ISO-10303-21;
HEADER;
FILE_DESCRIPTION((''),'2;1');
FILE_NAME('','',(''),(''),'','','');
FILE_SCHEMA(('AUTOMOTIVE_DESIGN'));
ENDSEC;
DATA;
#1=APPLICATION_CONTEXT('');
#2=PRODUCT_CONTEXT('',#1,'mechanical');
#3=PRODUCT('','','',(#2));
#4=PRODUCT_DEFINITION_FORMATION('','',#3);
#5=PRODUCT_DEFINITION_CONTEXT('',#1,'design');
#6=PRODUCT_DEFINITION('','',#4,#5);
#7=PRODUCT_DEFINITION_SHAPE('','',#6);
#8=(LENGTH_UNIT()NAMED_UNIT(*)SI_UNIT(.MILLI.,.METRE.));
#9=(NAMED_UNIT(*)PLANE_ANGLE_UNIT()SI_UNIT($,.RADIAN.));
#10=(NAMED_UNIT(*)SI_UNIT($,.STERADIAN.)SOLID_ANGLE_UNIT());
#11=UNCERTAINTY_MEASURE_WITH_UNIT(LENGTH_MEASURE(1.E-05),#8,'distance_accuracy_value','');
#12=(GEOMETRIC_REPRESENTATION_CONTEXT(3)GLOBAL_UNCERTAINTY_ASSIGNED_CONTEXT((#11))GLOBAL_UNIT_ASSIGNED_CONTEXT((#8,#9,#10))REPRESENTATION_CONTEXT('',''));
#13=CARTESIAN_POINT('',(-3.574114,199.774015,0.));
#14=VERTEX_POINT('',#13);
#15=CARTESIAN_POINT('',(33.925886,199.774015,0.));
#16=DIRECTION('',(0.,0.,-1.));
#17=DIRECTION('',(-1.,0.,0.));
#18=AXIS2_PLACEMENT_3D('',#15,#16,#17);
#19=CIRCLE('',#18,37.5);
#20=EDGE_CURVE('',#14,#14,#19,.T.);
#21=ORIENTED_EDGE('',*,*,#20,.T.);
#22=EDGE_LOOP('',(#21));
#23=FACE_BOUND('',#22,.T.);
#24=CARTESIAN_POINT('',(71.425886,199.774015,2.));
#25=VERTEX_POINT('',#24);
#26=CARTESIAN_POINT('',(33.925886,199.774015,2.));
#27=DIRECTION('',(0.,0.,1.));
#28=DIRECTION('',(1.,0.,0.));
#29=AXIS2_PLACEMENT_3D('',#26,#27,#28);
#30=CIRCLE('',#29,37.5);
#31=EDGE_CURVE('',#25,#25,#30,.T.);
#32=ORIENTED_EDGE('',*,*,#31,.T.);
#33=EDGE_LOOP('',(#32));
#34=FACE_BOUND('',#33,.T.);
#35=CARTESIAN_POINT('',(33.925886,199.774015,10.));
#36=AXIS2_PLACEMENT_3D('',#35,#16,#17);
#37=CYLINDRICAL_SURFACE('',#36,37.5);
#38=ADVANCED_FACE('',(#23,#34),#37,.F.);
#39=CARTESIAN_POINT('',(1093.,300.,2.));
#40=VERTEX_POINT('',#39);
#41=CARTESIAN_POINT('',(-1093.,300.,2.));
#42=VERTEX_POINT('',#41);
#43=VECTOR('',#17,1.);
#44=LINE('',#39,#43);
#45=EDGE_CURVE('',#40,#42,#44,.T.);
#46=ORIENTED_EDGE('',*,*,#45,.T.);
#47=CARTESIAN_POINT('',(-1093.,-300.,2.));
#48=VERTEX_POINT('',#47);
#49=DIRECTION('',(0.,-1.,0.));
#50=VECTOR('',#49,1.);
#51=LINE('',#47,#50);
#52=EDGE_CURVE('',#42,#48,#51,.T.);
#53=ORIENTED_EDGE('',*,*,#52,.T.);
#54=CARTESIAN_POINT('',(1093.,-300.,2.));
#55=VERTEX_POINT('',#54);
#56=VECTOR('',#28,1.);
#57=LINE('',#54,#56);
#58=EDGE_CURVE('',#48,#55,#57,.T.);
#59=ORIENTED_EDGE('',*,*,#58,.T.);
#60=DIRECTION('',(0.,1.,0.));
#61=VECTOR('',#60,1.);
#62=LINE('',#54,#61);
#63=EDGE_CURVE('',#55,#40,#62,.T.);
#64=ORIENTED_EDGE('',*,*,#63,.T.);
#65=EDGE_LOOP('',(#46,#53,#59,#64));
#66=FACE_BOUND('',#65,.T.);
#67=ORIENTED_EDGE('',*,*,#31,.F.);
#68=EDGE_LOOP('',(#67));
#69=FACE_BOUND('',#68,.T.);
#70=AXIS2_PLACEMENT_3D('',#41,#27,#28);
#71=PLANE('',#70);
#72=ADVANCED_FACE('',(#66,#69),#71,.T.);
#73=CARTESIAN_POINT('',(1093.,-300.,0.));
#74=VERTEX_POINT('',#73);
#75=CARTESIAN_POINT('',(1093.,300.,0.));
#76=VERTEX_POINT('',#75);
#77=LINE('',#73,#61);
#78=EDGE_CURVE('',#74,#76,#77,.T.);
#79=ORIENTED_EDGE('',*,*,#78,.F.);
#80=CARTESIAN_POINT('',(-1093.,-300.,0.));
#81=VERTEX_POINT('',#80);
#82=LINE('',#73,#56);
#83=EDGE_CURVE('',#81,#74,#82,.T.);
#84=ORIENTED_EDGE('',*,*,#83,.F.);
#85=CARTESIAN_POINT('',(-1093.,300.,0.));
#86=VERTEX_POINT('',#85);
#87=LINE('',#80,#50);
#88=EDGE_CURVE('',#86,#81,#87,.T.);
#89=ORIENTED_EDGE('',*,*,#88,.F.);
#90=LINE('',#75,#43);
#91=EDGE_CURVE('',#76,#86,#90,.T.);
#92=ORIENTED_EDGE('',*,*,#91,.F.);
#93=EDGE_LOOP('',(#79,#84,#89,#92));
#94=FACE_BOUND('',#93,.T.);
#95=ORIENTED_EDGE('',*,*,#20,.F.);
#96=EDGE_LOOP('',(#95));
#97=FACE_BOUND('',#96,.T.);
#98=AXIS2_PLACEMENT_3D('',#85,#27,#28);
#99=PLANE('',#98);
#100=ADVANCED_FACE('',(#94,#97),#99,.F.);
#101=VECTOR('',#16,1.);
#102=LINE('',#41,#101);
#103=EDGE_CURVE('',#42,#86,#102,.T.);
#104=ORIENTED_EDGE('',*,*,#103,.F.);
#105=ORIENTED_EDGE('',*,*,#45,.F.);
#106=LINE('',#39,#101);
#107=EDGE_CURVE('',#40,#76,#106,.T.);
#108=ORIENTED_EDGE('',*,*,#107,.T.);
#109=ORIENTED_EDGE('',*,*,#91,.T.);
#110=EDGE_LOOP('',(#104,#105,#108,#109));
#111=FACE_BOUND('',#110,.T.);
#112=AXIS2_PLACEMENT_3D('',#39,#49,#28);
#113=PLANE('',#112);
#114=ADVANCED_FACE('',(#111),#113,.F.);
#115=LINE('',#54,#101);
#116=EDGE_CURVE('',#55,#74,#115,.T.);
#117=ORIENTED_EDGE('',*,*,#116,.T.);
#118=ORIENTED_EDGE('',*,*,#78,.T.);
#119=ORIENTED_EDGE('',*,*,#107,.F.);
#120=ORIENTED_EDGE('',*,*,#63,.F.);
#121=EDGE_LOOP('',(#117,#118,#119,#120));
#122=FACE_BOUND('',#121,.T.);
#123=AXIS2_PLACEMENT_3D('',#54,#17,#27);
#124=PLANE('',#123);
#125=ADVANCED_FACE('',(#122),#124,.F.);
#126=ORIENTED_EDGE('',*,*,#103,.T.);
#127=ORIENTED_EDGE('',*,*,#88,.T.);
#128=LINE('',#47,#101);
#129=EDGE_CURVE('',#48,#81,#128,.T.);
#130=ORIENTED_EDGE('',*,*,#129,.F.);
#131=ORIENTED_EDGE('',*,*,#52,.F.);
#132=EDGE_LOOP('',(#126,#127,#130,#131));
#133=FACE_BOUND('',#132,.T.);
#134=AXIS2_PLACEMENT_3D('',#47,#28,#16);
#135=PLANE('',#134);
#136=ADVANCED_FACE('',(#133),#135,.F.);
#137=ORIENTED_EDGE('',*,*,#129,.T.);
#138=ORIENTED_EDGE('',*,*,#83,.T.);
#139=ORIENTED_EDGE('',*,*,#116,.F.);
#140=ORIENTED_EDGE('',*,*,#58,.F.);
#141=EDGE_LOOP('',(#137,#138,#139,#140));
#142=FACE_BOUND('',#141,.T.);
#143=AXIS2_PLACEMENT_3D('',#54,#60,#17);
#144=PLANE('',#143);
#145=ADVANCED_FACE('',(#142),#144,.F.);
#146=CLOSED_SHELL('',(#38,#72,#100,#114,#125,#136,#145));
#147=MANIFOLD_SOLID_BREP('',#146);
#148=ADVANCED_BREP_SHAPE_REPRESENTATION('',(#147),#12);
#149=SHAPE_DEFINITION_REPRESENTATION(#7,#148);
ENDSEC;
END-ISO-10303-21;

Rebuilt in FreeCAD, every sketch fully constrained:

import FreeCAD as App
import Part
import Sketcher

V = App.Vector
Q = App.Units.Quantity


def add_polygon(sketch, points):
    """Adds a closed chain of lines whose ends are joined by coincident constraints."""
    first, n = sketch.GeometryCount, len(points)
    for a, b in zip(points, points[1:] + points[:1]):
        sketch.addGeometry(Part.LineSegment(App.Vector(*a, 0), App.Vector(*b, 0)), False)
    for i in range(n):
        sketch.addConstraint(Sketcher.Constraint("Coincident", first + i, 2, first + (i + 1) % n, 1))

doc = App.newDocument("Part")
body = doc.addObject("PartDesign::Body", "Body")

# Sketch on XY plane
sketch1 = body.newObject("Sketcher::SketchObject", "Sketch")
sketch1.AttachmentSupport = (doc.getObject("XY_Plane"), [""])
sketch1.MapMode = "FlatFace"
add_polygon(sketch1, [(-1093, 300), (-1093, -300), (1093, -300), (1093, 300)])  # lines 0-3
sketch1.addConstraint([
    Sketcher.Constraint("Vertical", 0),
    Sketcher.Constraint("Horizontal", 1),
    Sketcher.Constraint("Vertical", 2),
    Sketcher.Constraint("Horizontal", 3),
    Sketcher.Constraint("Symmetric", 0, 2, 2, 2, -1, 1),
    Sketcher.Constraint("DistanceX", 1, 1, 1, 2, Q("2186 mm")),
    Sketcher.Constraint("DistanceY", 0, 2, 0, 1, Q("600 mm")),
])
pad1 = body.newObject("PartDesign::Pad", "Pad")
pad1.Profile = sketch1
pad1.Length = 2

# Sketch on XY plane
sketch2 = body.newObject("Sketcher::SketchObject", "Sketch001")
sketch2.AttachmentSupport = (doc.getObject("XY_Plane"), [""])
sketch2.MapMode = "FlatFace"
sketch2.addGeometry(Part.Circle(V(34, 200, 0), V(0, 0, 1), 38), False)
sketch2.addConstraint([
    Sketcher.Constraint("Diameter", 0, Q("75 mm")),
    Sketcher.Constraint("DistanceX", -1, 1, 0, 3, Q("33.925886 mm")),
    Sketcher.Constraint("DistanceY", -1, 1, 0, 3, Q("199.774015 mm")),
])
pocket1 = body.newObject("PartDesign::Pocket", "Pocket")
pocket1.Profile = sketch2
pocket1.Length = 10
pocket1.Reversed = True

doc.recompute()
